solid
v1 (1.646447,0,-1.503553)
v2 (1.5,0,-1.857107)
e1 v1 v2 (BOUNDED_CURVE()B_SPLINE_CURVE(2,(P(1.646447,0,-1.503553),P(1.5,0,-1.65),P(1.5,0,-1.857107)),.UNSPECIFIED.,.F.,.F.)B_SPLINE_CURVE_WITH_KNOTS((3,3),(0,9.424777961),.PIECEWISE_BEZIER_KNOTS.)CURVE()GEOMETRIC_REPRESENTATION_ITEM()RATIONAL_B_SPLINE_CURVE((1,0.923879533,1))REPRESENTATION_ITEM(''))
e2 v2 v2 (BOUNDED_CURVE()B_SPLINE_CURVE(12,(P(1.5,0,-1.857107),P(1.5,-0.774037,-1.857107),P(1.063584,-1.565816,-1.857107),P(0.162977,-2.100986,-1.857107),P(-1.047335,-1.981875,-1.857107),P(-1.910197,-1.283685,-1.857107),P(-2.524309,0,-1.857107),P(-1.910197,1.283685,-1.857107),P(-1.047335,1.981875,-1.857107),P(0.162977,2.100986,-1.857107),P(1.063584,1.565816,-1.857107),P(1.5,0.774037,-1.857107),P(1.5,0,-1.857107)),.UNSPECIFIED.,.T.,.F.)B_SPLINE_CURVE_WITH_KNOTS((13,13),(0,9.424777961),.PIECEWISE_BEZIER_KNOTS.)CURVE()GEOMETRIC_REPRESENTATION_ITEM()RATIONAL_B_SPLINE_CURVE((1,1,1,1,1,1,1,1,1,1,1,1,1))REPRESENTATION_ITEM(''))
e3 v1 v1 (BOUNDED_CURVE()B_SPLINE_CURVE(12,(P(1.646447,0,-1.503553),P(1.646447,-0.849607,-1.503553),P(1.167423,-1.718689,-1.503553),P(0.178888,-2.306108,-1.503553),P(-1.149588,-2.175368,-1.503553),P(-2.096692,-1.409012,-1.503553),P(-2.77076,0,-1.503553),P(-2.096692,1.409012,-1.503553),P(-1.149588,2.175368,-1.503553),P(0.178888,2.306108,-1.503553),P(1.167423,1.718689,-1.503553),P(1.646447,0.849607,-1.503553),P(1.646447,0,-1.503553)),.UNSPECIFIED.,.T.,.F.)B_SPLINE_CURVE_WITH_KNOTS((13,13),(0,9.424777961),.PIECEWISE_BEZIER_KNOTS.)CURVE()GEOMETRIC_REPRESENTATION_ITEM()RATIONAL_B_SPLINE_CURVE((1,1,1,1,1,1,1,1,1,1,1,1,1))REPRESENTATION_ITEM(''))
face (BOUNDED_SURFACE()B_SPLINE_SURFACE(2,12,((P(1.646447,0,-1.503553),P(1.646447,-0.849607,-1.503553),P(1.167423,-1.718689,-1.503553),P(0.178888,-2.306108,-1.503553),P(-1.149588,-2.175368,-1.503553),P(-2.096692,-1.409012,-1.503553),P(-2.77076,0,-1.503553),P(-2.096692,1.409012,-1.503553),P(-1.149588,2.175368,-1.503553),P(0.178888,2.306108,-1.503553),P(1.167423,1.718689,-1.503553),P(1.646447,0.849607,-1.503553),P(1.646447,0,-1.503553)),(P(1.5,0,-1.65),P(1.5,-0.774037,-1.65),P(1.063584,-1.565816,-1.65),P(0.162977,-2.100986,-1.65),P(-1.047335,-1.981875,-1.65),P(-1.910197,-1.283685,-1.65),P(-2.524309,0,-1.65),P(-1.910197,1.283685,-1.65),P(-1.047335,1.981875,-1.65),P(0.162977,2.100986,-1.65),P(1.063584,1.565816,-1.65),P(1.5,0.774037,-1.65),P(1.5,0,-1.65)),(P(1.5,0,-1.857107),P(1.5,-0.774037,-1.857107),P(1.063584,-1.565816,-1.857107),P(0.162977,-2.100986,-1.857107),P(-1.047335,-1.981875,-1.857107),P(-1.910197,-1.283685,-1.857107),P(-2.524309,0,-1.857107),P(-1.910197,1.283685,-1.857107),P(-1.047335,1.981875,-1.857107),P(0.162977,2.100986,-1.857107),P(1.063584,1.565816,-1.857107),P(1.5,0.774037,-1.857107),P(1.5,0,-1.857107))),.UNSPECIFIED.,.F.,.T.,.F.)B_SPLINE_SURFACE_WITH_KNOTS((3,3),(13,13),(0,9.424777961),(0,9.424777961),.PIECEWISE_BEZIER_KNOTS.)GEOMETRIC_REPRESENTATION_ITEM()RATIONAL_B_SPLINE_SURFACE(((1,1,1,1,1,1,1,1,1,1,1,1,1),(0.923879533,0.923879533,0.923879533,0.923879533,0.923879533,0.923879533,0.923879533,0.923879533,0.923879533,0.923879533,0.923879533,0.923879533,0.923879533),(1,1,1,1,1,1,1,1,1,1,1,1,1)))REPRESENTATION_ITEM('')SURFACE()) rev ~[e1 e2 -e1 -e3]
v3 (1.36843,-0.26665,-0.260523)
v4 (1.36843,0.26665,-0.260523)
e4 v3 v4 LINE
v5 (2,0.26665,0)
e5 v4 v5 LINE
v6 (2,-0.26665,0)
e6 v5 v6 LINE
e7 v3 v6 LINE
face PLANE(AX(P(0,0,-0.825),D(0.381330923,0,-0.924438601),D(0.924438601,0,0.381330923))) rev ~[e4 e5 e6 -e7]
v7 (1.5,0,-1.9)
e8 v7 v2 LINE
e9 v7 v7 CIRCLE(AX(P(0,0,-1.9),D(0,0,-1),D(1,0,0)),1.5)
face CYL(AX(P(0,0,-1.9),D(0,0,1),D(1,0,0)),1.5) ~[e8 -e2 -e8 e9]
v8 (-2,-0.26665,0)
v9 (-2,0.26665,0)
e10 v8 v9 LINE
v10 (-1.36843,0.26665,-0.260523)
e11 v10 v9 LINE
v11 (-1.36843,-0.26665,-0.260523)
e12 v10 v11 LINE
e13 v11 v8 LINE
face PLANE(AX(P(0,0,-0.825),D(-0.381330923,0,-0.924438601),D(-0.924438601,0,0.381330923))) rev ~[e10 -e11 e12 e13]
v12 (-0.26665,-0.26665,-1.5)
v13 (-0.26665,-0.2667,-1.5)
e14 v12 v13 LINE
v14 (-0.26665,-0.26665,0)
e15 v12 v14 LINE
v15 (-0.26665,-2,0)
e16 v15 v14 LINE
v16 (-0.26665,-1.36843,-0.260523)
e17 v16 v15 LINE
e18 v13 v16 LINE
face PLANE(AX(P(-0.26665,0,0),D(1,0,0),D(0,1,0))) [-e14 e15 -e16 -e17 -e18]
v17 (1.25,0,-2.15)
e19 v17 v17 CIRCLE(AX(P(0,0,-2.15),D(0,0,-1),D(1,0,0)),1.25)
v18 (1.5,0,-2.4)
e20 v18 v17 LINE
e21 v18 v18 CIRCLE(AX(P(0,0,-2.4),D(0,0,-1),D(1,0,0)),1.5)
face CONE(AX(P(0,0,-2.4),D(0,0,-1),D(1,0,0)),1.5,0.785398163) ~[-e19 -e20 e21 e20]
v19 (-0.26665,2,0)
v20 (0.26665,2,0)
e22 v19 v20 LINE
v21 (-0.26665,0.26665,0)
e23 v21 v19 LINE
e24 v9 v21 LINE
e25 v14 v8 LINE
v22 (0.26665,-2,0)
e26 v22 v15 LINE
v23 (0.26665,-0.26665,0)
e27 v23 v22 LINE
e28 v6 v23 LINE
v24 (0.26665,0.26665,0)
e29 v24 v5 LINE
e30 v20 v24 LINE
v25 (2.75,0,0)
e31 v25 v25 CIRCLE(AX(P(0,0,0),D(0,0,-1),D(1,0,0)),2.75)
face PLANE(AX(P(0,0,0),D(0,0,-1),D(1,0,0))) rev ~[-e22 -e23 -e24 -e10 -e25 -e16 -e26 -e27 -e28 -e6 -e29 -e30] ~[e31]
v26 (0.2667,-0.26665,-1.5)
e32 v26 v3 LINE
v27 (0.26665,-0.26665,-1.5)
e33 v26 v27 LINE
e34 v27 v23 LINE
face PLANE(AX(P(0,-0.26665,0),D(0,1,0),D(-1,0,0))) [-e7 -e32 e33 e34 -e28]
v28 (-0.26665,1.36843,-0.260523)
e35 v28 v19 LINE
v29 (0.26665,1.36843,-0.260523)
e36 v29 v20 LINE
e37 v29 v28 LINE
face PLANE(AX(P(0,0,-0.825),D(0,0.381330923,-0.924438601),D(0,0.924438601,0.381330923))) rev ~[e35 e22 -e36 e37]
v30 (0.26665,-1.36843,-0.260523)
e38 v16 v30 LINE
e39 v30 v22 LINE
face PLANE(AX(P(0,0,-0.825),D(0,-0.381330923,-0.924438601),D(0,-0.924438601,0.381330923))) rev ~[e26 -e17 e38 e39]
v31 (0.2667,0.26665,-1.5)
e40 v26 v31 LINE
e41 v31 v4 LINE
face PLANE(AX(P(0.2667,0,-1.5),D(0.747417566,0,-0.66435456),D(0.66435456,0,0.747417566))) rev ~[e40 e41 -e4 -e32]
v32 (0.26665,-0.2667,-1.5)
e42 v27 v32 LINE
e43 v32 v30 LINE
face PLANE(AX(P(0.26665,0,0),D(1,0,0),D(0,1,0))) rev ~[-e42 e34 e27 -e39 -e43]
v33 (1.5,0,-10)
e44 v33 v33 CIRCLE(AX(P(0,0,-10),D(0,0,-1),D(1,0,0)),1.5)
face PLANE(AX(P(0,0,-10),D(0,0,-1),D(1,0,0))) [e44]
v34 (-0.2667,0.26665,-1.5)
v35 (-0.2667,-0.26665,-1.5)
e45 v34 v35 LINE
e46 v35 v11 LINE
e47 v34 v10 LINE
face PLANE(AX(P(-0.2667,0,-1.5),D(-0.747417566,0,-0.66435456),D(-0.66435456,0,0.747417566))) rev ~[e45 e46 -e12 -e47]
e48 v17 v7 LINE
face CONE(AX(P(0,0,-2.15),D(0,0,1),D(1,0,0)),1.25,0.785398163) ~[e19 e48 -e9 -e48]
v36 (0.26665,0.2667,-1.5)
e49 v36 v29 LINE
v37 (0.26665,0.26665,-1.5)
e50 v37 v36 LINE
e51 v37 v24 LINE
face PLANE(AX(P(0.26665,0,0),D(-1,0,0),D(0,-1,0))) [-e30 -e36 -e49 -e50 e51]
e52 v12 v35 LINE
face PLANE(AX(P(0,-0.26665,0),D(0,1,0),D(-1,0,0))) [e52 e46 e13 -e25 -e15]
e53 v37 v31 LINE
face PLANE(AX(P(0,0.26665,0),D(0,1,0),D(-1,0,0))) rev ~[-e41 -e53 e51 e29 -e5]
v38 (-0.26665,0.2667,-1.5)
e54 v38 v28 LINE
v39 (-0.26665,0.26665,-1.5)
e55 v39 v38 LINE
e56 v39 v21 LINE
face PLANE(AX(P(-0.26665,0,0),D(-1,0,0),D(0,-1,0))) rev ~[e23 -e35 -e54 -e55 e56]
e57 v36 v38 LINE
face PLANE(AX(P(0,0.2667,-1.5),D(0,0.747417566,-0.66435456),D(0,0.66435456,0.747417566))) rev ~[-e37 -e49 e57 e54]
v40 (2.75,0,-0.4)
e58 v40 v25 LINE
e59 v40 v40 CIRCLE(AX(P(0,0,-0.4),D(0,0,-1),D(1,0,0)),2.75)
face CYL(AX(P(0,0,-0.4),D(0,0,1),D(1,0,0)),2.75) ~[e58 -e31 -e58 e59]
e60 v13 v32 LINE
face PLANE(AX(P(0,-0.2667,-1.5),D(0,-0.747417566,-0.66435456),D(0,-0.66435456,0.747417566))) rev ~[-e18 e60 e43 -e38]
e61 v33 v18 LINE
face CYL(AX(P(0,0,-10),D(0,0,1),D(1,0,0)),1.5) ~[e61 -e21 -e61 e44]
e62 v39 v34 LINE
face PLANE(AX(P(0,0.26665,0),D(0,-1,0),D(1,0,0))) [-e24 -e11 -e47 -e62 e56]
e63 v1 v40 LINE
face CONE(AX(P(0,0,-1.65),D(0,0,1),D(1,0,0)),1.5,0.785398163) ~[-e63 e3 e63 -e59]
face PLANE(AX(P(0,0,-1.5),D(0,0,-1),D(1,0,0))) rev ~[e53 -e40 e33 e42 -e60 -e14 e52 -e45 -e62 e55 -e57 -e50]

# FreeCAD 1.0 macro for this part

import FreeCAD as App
import Part
import Sketcher
from FreeCAD import Vector


def edges_at(feature, points):
    """Names of the edges that pass closest to the given points."""
    edges = feature.Shape.Edges
    near = lambda p: min(range(len(edges)), key=lambda i: edges[i].distToShape(Part.Vertex(*p))[0])
    return sorted({f"Edge{near(p) + 1}" for p in points})

doc = App.newDocument("Part")
body = doc.addObject("PartDesign::Body", "Body")

# Sketch on XZ plane
sketch1 = doc.addObject("Sketcher::SketchObject", "Sketch")
body.addObject(sketch1)
sketch1.AttachmentSupport = (doc.XZ_Plane, [""])
sketch1.MapMode = "FlatFace"
sketch1.addGeometry(Part.LineSegment(Vector(0, 0, 0), Vector(2.75, 0, 0)), False)
sketch1.addGeometry(Part.LineSegment(Vector(2.75, 0, 0), Vector(2.75, -0.4, 0)), False)
sketch1.addGeometry(Part.LineSegment(Vector(2.75, -0.4, 0), Vector(1.5, -1.65, 0)), False)
sketch1.addGeometry(Part.LineSegment(Vector(1.5, -1.65, 0), Vector(1.5, -1.9, 0)), False)
sketch1.addGeometry(Part.LineSegment(Vector(1.5, -1.9, 0), Vector(1.25, -2.15, 0)), False)
sketch1.addGeometry(Part.LineSegment(Vector(1.25, -2.15, 0), Vector(1.5, -2.4, 0)), False)
sketch1.addGeometry(Part.LineSegment(Vector(1.5, -2.4, 0), Vector(1.5, -10, 0)), False)
sketch1.addGeometry(Part.LineSegment(Vector(1.5, -10, 0), Vector(0, -10, 0)), False)
sketch1.addGeometry(Part.LineSegment(Vector(0, -10, 0), Vector(0, 0, 0)), False)
sketch1.addConstraint(Sketcher.Constraint("Coincident", 0, 2, 1, 1))
sketch1.addConstraint(Sketcher.Constraint("Coincident", 1, 2, 2, 1))
sketch1.addConstraint(Sketcher.Constraint("Coincident", 2, 2, 3, 1))
sketch1.addConstraint(Sketcher.Constraint("Coincident", 3, 2, 4, 1))
sketch1.addConstraint(Sketcher.Constraint("Coincident", 4, 2, 5, 1))
sketch1.addConstraint(Sketcher.Constraint("Coincident", 5, 2, 6, 1))
sketch1.addConstraint(Sketcher.Constraint("Coincident", 6, 2, 7, 1))
sketch1.addConstraint(Sketcher.Constraint("Coincident", 7, 2, 8, 1))
sketch1.addConstraint(Sketcher.Constraint("Coincident", 8, 2, 0, 1))
sketch1.addConstraint(Sketcher.Constraint("Horizontal", 0))
sketch1.addConstraint(Sketcher.Constraint("Vertical", 1))
sketch1.addConstraint(Sketcher.Constraint("Vertical", 3))
sketch1.addConstraint(Sketcher.Constraint("Vertical", 6))
sketch1.addConstraint(Sketcher.Constraint("Horizontal", 7))
sketch1.addConstraint(Sketcher.Constraint("Vertical", 8))
sketch1.addConstraint(Sketcher.Constraint("Coincident", 8, 2, -1, 1))
sketch1.addConstraint(Sketcher.Constraint("Parallel", 2, 4))
sketch1.addConstraint(Sketcher.Constraint("Perpendicular", 4, 5))
sketch1.addConstraint(Sketcher.Constraint("Vertical", 3, 2, 5, 2))
sketch1.addConstraint(Sketcher.Constraint("Equal", 4, 5))
sketch1.addConstraint(Sketcher.Constraint("DistanceY", 8, 1, 8, 2, 10.0))
sketch1.addConstraint(Sketcher.Constraint("DistanceX", 7, 2, 7, 1, 1.5))
sketch1.addConstraint(Sketcher.Constraint("DistanceX", 0, 1, 0, 2, 2.75))
sketch1.addConstraint(Sketcher.Constraint("DistanceY", 3, 2, 3, 1, 0.25))
sketch1.addConstraint(Sketcher.Constraint("DistanceX", 4, 2, 1, 2, 1.5))
sketch1.addConstraint(Sketcher.Constraint("DistanceY", 2, 2, -1, 1, 1.65))
revolution = doc.addObject("PartDesign::Revolution", "Revolution")
body.addObject(revolution)
revolution.Profile = sketch1
revolution.ReferenceAxis = (sketch1, ["V_Axis"])
revolution.Angle = 360

# Sketch on XZ plane
sketch2 = doc.addObject("Sketcher::SketchObject", "Sketch001")
body.addObject(sketch2)
sketch2.AttachmentSupport = (doc.XZ_Plane, [""])
sketch2.MapMode = "FlatFace"
sketch2.addGeometry(Part.LineSegment(Vector(0, 0, 0), Vector(1.6, 0, 0)), False)
sketch2.addGeometry(Part.LineSegment(Vector(1.6, 0, 0), Vector(0.27, -1.5, 0)), False)
sketch2.addGeometry(Part.LineSegment(Vector(0.27, -1.5, 0), Vector(0, -1.5, 0)), False)
sketch2.addGeometry(Part.LineSegment(Vector(0, -1.5, 0), Vector(0, 0, 0)), False)
sketch2.addConstraint(Sketcher.Constraint("Coincident", 0, 2, 1, 1))
sketch2.addConstraint(Sketcher.Constraint("Coincident", 1, 2, 2, 1))
sketch2.addConstraint(Sketcher.Constraint("Coincident", 2, 2, 3, 1))
sketch2.addConstraint(Sketcher.Constraint("Coincident", 3, 2, 0, 1))
sketch2.addConstraint(Sketcher.Constraint("Horizontal", 0))
sketch2.addConstraint(Sketcher.Constraint("Horizontal", 2))
sketch2.addConstraint(Sketcher.Constraint("Vertical", 3))
sketch2.addConstraint(Sketcher.Constraint("Coincident", 3, 2, -1, 1))
sketch2.addConstraint(Sketcher.Constraint("DistanceX", 0, 1, 0, 2, 1.6))
sketch2.addConstraint(Sketcher.Constraint("DistanceY", 3, 1, 3, 2, 1.5))
sketch2.addConstraint(Sketcher.Constraint("DistanceX", 2, 2, 2, 1, 0.2667))
pocket1 = doc.addObject("PartDesign::Pocket", "Pocket")
body.addObject(pocket1)
pocket1.Profile = sketch2
pocket1.Length = 0.5333
pocket1.Midplane = True
doc.recompute()

polarpattern = doc.addObject("PartDesign::PolarPattern", "PolarPattern")
body.addObject(polarpattern)
polarpattern.Originals = [pocket1]
polarpattern.Axis = (doc.Z_Axis, [""])
polarpattern.Angle = 360
polarpattern.Occurrences = 4
body.Tip = polarpattern

# Sketch on XZ plane
sketch3 = doc.addObject("Sketcher::SketchObject", "Sketch002")
body.addObject(sketch3)
sketch3.AttachmentSupport = (doc.XZ_Plane, [""])
sketch3.MapMode = "FlatFace"
sketch3.addGeometry(Part.LineSegment(Vector(2, 0, 0), Vector(0, -0.8, 0)), False)
sketch3.addGeometry(Part.LineSegment(Vector(0, -0.8, 0), Vector(0, 0, 0)), False)
sketch3.addGeometry(Part.LineSegment(Vector(0, 0, 0), Vector(2, 0, 0)), False)
sketch3.addConstraint(Sketcher.Constraint("Coincident", 0, 2, 1, 1))
sketch3.addConstraint(Sketcher.Constraint("Coincident", 1, 2, 2, 1))
sketch3.addConstraint(Sketcher.Constraint("Coincident", 2, 2, 0, 1))
sketch3.addConstraint(Sketcher.Constraint("Vertical", 1))
sketch3.addConstraint(Sketcher.Constraint("Horizontal", 2))
sketch3.addConstraint(Sketcher.Constraint("Coincident", 1, 2, -1, 1))
sketch3.addConstraint(Sketcher.Constraint("DistanceX", 2, 1, 2, 2, 2.0))
sketch3.addConstraint(Sketcher.Constraint("DistanceY", 1, 1, 1, 2, 0.825))
pocket2 = doc.addObject("PartDesign::Pocket", "Pocket001")
body.addObject(pocket2)
pocket2.Profile = sketch3
pocket2.Length = 0.5333
pocket2.Midplane = True
doc.recompute()

polarpattern2 = doc.addObject("PartDesign::PolarPattern", "PolarPattern001")
body.addObject(polarpattern2)
polarpattern2.Originals = [pocket2]
polarpattern2.Axis = (doc.Z_Axis, [""])
polarpattern2.Angle = 360
polarpattern2.Occurrences = 4
body.Tip = polarpattern2
doc.recompute()

fillet = doc.addObject("PartDesign::Fillet", "Fillet")
body.addObject(fillet)
fillet.Base = (polarpattern2, edges_at(polarpattern2, [(-1.5, 0, -1.65)]))
fillet.Radius = 0.5

doc.recompute()
